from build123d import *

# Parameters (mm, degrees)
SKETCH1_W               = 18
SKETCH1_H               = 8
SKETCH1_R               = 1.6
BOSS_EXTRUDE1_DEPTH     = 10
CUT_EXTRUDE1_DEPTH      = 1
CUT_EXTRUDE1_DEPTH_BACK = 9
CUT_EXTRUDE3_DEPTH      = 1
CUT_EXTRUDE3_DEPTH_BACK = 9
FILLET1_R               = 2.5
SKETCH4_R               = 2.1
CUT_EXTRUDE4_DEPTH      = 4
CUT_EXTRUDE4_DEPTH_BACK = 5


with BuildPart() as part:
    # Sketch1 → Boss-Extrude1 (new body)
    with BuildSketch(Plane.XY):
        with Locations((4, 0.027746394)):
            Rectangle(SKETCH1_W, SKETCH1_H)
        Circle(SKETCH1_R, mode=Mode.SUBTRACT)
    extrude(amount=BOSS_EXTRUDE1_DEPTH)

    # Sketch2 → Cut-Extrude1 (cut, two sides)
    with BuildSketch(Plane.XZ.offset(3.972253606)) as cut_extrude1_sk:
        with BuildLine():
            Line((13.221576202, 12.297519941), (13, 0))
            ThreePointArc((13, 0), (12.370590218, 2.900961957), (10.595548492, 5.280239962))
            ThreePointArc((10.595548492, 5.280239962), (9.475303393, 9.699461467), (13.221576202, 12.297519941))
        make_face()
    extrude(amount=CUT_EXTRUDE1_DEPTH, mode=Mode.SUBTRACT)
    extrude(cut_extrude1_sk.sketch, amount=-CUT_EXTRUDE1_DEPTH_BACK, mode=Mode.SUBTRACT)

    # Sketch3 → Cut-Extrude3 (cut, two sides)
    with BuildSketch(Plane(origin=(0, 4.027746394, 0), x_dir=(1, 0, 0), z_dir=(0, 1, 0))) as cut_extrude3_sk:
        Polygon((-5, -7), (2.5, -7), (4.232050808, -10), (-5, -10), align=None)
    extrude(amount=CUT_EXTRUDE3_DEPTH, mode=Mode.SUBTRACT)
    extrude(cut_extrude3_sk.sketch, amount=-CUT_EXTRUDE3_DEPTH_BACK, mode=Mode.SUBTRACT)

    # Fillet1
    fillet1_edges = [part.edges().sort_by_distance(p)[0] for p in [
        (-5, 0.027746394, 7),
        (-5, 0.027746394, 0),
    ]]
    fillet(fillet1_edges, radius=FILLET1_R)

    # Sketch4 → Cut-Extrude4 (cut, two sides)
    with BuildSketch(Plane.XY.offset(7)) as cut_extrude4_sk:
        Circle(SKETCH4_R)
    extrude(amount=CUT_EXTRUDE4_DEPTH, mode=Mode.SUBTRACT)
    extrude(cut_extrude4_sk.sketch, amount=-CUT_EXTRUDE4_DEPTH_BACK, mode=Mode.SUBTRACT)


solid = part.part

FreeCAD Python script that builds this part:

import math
import FreeCAD as App
import Part
import Sketcher

V = App.Vector
Q = App.Units.Quantity


def edges_at(feature, points):
    """Names of the edges that pass closest to the given points."""
    edges = feature.Shape.Edges
    near = lambda p: min(range(len(edges)), key=lambda i: edges[i].distToShape(Part.Vertex(*p))[0])
    return sorted({f"Edge{near(p) + 1}" for p in points})

doc = App.newDocument("Part")
body = doc.addObject("PartDesign::Body", "Body")

sketch1 = body.newObject("Sketcher::SketchObject", "Sketch")
sketch1.AttachmentSupport = (doc.getObject("XY_Plane"), [""])
sketch1.MapMode = "FlatFace"
sketch1.addGeometry([
    Part.LineSegment(V(-5, 4, 0), V(-5, -4, 0)),
    Part.LineSegment(V(-5, -4, 0), V(13, -4, 0)),
    Part.LineSegment(V(13, -4, 0), V(13, 4, 0)),
    Part.LineSegment(V(13, 4, 0), V(-5, 4, 0)),
    Part.Circle(V(0, 0, 0), V(0, 0, 1), 1.6),
], False)
sketch1.addConstraint([
    Sketcher.Constraint("Coincident", 0, 2, 1, 1),
    Sketcher.Constraint("Coincident", 1, 2, 2, 1),
    Sketcher.Constraint("Coincident", 2, 2, 3, 1),
    Sketcher.Constraint("Coincident", 3, 2, 0, 1),
    Sketcher.Constraint("Vertical", 0),
    Sketcher.Constraint("Horizontal", 1),
    Sketcher.Constraint("Vertical", 2),
    Sketcher.Constraint("Horizontal", 3),
    Sketcher.Constraint("Coincident", 4, 3, -1, 1),
    Sketcher.Constraint("Diameter", 4, 3.2),
    Sketcher.Constraint("DistanceX", 1, 1, 1, 2, 18.0),
    Sketcher.Constraint("DistanceY", 0, 2, 0, 1, 8.0),
    Sketcher.Constraint("DistanceX", 0, 2, -1, 1, 5.0),
    Sketcher.Constraint("DistanceY", 0, 2, -1, 1, 3.972254),
])
pad1 = body.newObject("PartDesign::Pad", "Pad")
pad1.Profile = sketch1
pad1.Length = 10

sketch2 = body.newObject("Sketcher::SketchObject", "Sketch001")
sketch2.AttachmentSupport = (doc.getObject("XZ_Plane"), [""])
sketch2.MapMode = "FlatFace"
sketch2.AttachmentOffset = App.Placement(V(0, 0, 3.972254), App.Rotation())
sketch2.addGeometry([
    Part.LineSegment(V(13, 0, 0), V(13.2, 12.3, 0)),
    Part.ArcOfCircle(Part.Circle(V(13.2, 8.3, 0), V(0, 0, 1), 4), math.radians(90), math.radians(229)),
    Part.ArcOfCircle(Part.Circle(V(6, 0, 0), V(0, 0, 1), 7), math.radians(0), math.radians(49)),
], False)
sketch2.addConstraint([
    Sketcher.Constraint("Coincident", 0, 2, 1, 1),
    Sketcher.Constraint("Tangent", 1, 2, 2, 2),
    Sketcher.Constraint("Coincident", 2, 1, 0, 1),
    Sketcher.Constraint("PointOnObject", 2, 3, -1),
    Sketcher.Constraint("PointOnObject", 2, 1, -1),
    Sketcher.Constraint("Vertical", 1, 3, 0, 2),
    Sketcher.Constraint("Radius", 1, 4.0),
    Sketcher.Constraint("Radius", 2, 7.0),
    Sketcher.Constraint("DistanceX", -1, 1, 2, 3, 6.0),
    Sketcher.Constraint("DistanceY", -1, 1, 1, 3, 8.29752),
])
pocket1 = body.newObject("PartDesign::Pocket", "Pocket")
pocket1.Profile = sketch2
pocket1.Type = "ThroughAll"
pocket1.Midplane = True

sketch3 = body.newObject("Sketcher::SketchObject", "Sketch002")
sketch3.AttachmentSupport = (doc.getObject("XZ_Plane"), [""])
sketch3.MapMode = "FlatFace"
sketch3.AttachmentOffset = App.Placement(V(0, 0, -4.027746), App.Rotation())
sketch3.addGeometry([
    Part.LineSegment(V(2.5, 7, 0), V(-5, 7, 0)),
    Part.LineSegment(V(-5, 7, 0), V(-5, 10, 0)),
    Part.LineSegment(V(-5, 10, 0), V(4.2, 10, 0)),
    Part.LineSegment(V(4.2, 10, 0), V(2.5, 7, 0)),
], False)
sketch3.addConstraint([
    Sketcher.Constraint("Coincident", 0, 2, 1, 1),
    Sketcher.Constraint("Coincident", 1, 2, 2, 1),
    Sketcher.Constraint("Coincident", 2, 2, 3, 1),
    Sketcher.Constraint("Coincident", 3, 2, 0, 1),
    Sketcher.Constraint("Horizontal", 0),
    Sketcher.Constraint("Vertical", 1),
    Sketcher.Constraint("Horizontal", 2),
    Sketcher.Constraint("DistanceY", 1, 1, 1, 2, 3.0),
    Sketcher.Constraint("Angle", 3, Q("-120 deg")),
    Sketcher.Constraint("DistanceX", 0, 2, 0, 1, 7.5),
    Sketcher.Constraint("DistanceX", 0, 2, -1, 1, 5.0),
    Sketcher.Constraint("DistanceY", -1, 1, 0, 2, 7.0),
])
pocket2 = body.newObject("PartDesign::Pocket", "Pocket001")
pocket2.Profile = sketch3
pocket2.Type = "ThroughAll"
pocket2.Midplane = True
doc.recompute()

fillet = body.newObject("PartDesign::Fillet", "Fillet")
fillet.Base = (pocket2, edges_at(pocket2, [(-5, 0.028, 7), (-5, 0.028, 0)]))
fillet.Radius = 2.5

sketch4 = body.newObject("Sketcher::SketchObject", "Sketch003")
sketch4.AttachmentSupport = (doc.getObject("XY_Plane"), [""])
sketch4.MapMode = "FlatFace"
sketch4.AttachmentOffset = App.Placement(V(0, 0, 7), App.Rotation())
sketch4.addGeometry(Part.Circle(V(0, 0, 0), V(0, 0, 1), 2.1), False)
sketch4.addConstraint([
    Sketcher.Constraint("Coincident", 0, 3, -1, 1),
    Sketcher.Constraint("Diameter", 0, 4.2),
])
pocket3 = body.newObject("PartDesign::Pocket", "Pocket002")
pocket3.Profile = sketch4
pocket3.Type = "TwoLengths"
pocket3.Length = 4
pocket3.Length2 = 5
pocket3.Reversed = True

doc.recompute()
